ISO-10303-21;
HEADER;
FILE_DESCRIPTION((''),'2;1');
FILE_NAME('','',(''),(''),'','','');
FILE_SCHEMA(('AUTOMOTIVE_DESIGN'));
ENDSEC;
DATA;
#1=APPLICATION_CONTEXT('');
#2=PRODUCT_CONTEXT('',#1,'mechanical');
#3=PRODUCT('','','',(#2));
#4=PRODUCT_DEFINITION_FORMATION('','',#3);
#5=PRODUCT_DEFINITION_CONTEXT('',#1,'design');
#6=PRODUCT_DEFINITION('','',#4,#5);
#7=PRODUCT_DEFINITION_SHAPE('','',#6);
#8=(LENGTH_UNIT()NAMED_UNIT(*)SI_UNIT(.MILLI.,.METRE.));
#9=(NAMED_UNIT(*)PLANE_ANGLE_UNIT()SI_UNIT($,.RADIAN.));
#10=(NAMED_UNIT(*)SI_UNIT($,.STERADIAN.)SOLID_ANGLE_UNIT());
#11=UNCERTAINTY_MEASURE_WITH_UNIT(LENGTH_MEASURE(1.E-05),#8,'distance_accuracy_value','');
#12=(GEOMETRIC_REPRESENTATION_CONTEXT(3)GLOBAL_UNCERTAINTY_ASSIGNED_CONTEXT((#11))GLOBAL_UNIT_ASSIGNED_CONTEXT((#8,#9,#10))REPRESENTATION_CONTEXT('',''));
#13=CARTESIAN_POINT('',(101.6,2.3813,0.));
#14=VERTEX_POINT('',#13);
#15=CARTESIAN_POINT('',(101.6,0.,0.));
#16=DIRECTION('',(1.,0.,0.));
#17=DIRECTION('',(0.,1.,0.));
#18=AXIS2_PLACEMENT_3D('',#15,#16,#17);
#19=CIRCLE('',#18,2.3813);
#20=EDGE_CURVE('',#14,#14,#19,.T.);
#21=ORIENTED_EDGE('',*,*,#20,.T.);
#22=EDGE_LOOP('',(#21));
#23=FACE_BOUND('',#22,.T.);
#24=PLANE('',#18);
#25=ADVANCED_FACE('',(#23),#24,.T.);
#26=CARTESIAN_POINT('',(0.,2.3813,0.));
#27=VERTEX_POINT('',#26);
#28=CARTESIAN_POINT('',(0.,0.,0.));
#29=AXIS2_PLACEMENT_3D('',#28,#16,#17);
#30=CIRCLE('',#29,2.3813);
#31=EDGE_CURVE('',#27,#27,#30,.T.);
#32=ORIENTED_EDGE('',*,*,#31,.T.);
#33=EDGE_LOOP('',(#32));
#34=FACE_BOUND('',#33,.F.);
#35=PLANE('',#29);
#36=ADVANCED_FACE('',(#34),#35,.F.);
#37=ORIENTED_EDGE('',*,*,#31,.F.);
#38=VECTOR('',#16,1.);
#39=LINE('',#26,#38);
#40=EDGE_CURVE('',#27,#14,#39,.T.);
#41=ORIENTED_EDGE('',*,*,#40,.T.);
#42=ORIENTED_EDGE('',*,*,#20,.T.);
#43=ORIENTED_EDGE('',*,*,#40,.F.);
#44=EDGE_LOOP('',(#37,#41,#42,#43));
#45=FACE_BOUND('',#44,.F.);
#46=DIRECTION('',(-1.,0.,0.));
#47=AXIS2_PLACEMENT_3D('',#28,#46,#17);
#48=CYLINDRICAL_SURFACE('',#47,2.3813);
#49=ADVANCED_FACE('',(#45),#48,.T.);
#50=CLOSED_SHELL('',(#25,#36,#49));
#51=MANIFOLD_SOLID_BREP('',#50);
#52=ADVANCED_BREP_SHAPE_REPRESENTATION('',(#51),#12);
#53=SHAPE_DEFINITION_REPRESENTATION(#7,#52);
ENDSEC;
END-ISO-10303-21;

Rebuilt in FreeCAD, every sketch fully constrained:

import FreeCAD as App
import Part
import Sketcher
Q = App.Units.Quantity

doc = App.newDocument("Part")
body = doc.addObject("PartDesign::Body", "Body")

sketch1 = doc.addObject("Sketcher::SketchObject", "Sketch")
body.addObject(sketch1)
sketch1.AttachmentSupport = (doc.YZ_Plane, [""])
sketch1.MapMode = "FlatFace"
sketch1.addGeometry(Part.Circle(App.Vector(0, 0, 0), App.Vector(0, 0, 1), 2.4), False)
sketch1.addConstraint([
    Sketcher.Constraint("Coincident", 0, 3, -1, 1),
    Sketcher.Constraint("Diameter", 0, Q("0.1875 in")),
])
pad1 = doc.addObject("PartDesign::Pad", "Pad")
body.addObject(pad1)
pad1.Profile = sketch1
pad1.Length = Q("4 in")

doc.recompute()
